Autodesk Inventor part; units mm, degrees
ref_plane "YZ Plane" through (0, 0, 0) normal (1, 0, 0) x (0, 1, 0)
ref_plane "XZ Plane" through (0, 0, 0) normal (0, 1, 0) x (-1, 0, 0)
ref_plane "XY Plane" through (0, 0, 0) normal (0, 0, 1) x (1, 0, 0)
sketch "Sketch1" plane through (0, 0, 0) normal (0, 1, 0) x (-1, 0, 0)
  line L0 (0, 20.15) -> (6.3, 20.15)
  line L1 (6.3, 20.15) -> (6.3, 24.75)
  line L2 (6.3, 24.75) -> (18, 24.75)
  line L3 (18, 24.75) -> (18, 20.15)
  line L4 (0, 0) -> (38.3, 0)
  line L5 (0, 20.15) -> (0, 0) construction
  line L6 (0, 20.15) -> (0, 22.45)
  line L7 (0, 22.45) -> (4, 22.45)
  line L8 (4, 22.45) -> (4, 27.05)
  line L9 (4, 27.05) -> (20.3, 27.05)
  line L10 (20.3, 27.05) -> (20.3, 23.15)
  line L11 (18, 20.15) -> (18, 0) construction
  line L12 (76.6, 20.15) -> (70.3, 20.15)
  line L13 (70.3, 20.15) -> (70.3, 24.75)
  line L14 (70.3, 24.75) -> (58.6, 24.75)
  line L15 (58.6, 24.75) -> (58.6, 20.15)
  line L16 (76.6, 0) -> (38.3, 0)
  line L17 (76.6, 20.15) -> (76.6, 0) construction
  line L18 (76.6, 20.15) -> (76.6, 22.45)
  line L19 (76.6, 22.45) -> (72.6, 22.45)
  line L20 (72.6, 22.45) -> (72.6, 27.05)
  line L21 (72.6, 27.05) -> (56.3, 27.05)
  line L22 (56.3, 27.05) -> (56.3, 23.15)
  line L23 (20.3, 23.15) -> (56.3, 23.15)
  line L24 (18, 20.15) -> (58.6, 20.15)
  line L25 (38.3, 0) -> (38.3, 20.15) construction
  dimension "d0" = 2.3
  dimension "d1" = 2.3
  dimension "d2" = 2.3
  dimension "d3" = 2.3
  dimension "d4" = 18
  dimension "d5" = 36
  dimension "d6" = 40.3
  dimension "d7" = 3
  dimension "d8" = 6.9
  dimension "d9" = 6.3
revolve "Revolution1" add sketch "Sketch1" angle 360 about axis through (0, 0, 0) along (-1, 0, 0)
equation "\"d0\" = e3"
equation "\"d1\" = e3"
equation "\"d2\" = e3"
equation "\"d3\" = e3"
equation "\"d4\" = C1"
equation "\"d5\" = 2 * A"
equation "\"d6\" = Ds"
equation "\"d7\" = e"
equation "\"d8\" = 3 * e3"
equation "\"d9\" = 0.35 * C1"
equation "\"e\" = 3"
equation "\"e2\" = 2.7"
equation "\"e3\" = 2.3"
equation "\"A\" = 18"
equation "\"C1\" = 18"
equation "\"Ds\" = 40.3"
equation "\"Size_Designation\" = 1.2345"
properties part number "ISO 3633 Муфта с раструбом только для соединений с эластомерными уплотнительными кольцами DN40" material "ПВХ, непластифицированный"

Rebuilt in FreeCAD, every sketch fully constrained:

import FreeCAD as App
import Part
import Sketcher
from FreeCAD import Vector
Q = App.Units.Quantity

doc = App.newDocument("Part")
body = doc.addObject("PartDesign::Body", "Body")

# Sketch on XZ plane
sketch1 = doc.addObject("Sketcher::SketchObject", "Sketch")
body.addObject(sketch1)
sketch1.AttachmentSupport = (doc.XZ_Plane, [""])
sketch1.MapMode = "FlatFace"
sketch1.addGeometry(Part.LineSegment(Vector(0, 22.4, 0), Vector(0, 20.1, 0)), False)
sketch1.addGeometry(Part.LineSegment(Vector(0, 20.1, 0), Vector(-6.3, 20.1, 0)), False)
sketch1.addGeometry(Part.LineSegment(Vector(-6.3, 20.1, 0), Vector(-6.3, 24.8, 0)), False)
sketch1.addGeometry(Part.LineSegment(Vector(-6.3, 24.8, 0), Vector(-18, 24.8, 0)), False)
sketch1.addGeometry(Part.LineSegment(Vector(-18, 24.8, 0), Vector(-18, 20.1, 0)), False)
sketch1.addGeometry(Part.LineSegment(Vector(-18, 20.1, 0), Vector(-58.6, 20.1, 0)), False)
sketch1.addGeometry(Part.LineSegment(Vector(-58.6, 20.1, 0), Vector(-58.6, 24.8, 0)), False)
sketch1.addGeometry(Part.LineSegment(Vector(-58.6, 24.8, 0), Vector(-70.3, 24.8, 0)), False)
sketch1.addGeometry(Part.LineSegment(Vector(-70.3, 24.8, 0), Vector(-70.3, 20.1, 0)), False)
sketch1.addGeometry(Part.LineSegment(Vector(-70.3, 20.1, 0), Vector(-76.6, 20.1, 0)), False)
sketch1.addGeometry(Part.LineSegment(Vector(-76.6, 20.1, 0), Vector(-76.6, 22.4, 0)), False)
sketch1.addGeometry(Part.LineSegment(Vector(-76.6, 22.4, 0), Vector(-72.6, 22.4, 0)), False)
sketch1.addGeometry(Part.LineSegment(Vector(-72.6, 22.4, 0), Vector(-72.6, 27.1, 0)), False)
sketch1.addGeometry(Part.LineSegment(Vector(-72.6, 27.1, 0), Vector(-56.3, 27.1, 0)), False)
sketch1.addGeometry(Part.LineSegment(Vector(-56.3, 27.1, 0), Vector(-56.3, 23.1, 0)), False)
sketch1.addGeometry(Part.LineSegment(Vector(-56.3, 23.1, 0), Vector(-20.3, 23.1, 0)), False)
sketch1.addGeometry(Part.LineSegment(Vector(-20.3, 23.1, 0), Vector(-20.3, 27.1, 0)), False)
sketch1.addGeometry(Part.LineSegment(Vector(-20.3, 27.1, 0), Vector(-4, 27.1, 0)), False)
sketch1.addGeometry(Part.LineSegment(Vector(-4, 27.1, 0), Vector(-4, 22.4, 0)), False)
sketch1.addGeometry(Part.LineSegment(Vector(-4, 22.4, 0), Vector(0, 22.4, 0)), False)
sketch1.addConstraint(Sketcher.Constraint("Coincident", 0, 2, 1, 1))
sketch1.addConstraint(Sketcher.Constraint("Coincident", 1, 2, 2, 1))
sketch1.addConstraint(Sketcher.Constraint("Coincident", 2, 2, 3, 1))
sketch1.addConstraint(Sketcher.Constraint("Coincident", 3, 2, 4, 1))
sketch1.addConstraint(Sketcher.Constraint("Coincident", 4, 2, 5, 1))
sketch1.addConstraint(Sketcher.Constraint("Coincident", 5, 2, 6, 1))
sketch1.addConstraint(Sketcher.Constraint("Coincident", 6, 2, 7, 1))
sketch1.addConstraint(Sketcher.Constraint("Coincident", 7, 2, 8, 1))
sketch1.addConstraint(Sketcher.Constraint("Coincident", 8, 2, 9, 1))
sketch1.addConstraint(Sketcher.Constraint("Coincident", 9, 2, 10, 1))
sketch1.addConstraint(Sketcher.Constraint("Coincident", 10, 2, 11, 1))
sketch1.addConstraint(Sketcher.Constraint("Coincident", 11, 2, 12, 1))
sketch1.addConstraint(Sketcher.Constraint("Coincident", 12, 2, 13, 1))
sketch1.addConstraint(Sketcher.Constraint("Coincident", 13, 2, 14, 1))
sketch1.addConstraint(Sketcher.Constraint("Coincident", 14, 2, 15, 1))
sketch1.addConstraint(Sketcher.Constraint("Coincident", 15, 2, 16, 1))
sketch1.addConstraint(Sketcher.Constraint("Coincident", 16, 2, 17, 1))
sketch1.addConstraint(Sketcher.Constraint("Coincident", 17, 2, 18, 1))
sketch1.addConstraint(Sketcher.Constraint("Coincident", 18, 2, 19, 1))
sketch1.addConstraint(Sketcher.Constraint("Coincident", 19, 2, 0, 1))
sketch1.addConstraint(Sketcher.Constraint("Vertical", 0))
sketch1.addConstraint(Sketcher.Constraint("Horizontal", 1))
sketch1.addConstraint(Sketcher.Constraint("Vertical", 2))
sketch1.addConstraint(Sketcher.Constraint("Horizontal", 3))
sketch1.addConstraint(Sketcher.Constraint("Vertical", 4))
sketch1.addConstraint(Sketcher.Constraint("Horizontal", 5))
sketch1.addConstraint(Sketcher.Constraint("Vertical", 6))
sketch1.addConstraint(Sketcher.Constraint("Horizontal", 7))
sketch1.addConstraint(Sketcher.Constraint("Vertical", 8))
sketch1.addConstraint(Sketcher.Constraint("Horizontal", 9))
sketch1.addConstraint(Sketcher.Constraint("Vertical", 10))
sketch1.addConstraint(Sketcher.Constraint("Horizontal", 11))
sketch1.addConstraint(Sketcher.Constraint("Vertical", 12))
sketch1.addConstraint(Sketcher.Constraint("Horizontal", 13))
sketch1.addConstraint(Sketcher.Constraint("Vertical", 14))
sketch1.addConstraint(Sketcher.Constraint("Horizontal", 15))
sketch1.addConstraint(Sketcher.Constraint("Vertical", 16))
sketch1.addConstraint(Sketcher.Constraint("Horizontal", 17))
sketch1.addConstraint(Sketcher.Constraint("Vertical", 18))
sketch1.addConstraint(Sketcher.Constraint("Horizontal", 19))
sketch1.addConstraint(Sketcher.Constraint("PointOnObject", 0, 2, -2))
sketch1.addConstraint(Sketcher.Constraint("Horizontal", 1, 2, 4, 2))
sketch1.addConstraint(Sketcher.Constraint("Horizontal", 3, 2, 6, 2))
sketch1.addConstraint(Sketcher.Constraint("Horizontal", 5, 2, 8, 2))
sketch1.addConstraint(Sketcher.Constraint("Horizontal", 13, 2, 16, 2))
sketch1.addConstraint(Sketcher.Constraint("Horizontal", 11, 2, 18, 2))
sketch1.addConstraint(Sketcher.Constraint("Equal", 3, 7))
sketch1.addConstraint(Sketcher.Constraint("Equal", 1, 9))
sketch1.addConstraint(Sketcher.Constraint("Equal", 13, 17))
sketch1.addConstraint(Sketcher.Constraint("Equal", 11, 19))
sketch1.addConstraint(Sketcher.Constraint("Equal", 8, 12))
sketch1.addConstraint(Sketcher.Constraint("DistanceX", 15, 1, 15, 2, Q("36 mm")))
sketch1.addConstraint(Sketcher.Constraint("DistanceX", 1, 2, 1, 1, Q("6.3 mm")))
sketch1.addConstraint(Sketcher.Constraint("DistanceY", 0, 2, 0, 1, Q("2.3 mm")))
sketch1.addConstraint(Sketcher.Constraint("DistanceX", 3, 2, -1, 1, Q("18 mm")))
sketch1.addConstraint(Sketcher.Constraint("DistanceY", 5, 2, 14, 2, Q("3 mm")))
sketch1.addConstraint(Sketcher.Constraint("DistanceY", 10, 2, 7, 2, Q("2.3 mm")))
sketch1.addConstraint(Sketcher.Constraint("DistanceX", 11, 2, 7, 2, Q("2.3 mm")))
sketch1.addConstraint(Sketcher.Constraint("DistanceX", 6, 2, 13, 2, Q("2.3 mm")))
sketch1.addConstraint(Sketcher.Constraint("DistanceY", -1, 1, 0, 2, Q("20.15 mm")))
revolution = doc.addObject("PartDesign::Revolution", "Revolution")
body.addObject(revolution)
revolution.Profile = sketch1
revolution.ReferenceAxis = (sketch1, ["H_Axis"])
revolution.Angle = 360

doc.recompute()
